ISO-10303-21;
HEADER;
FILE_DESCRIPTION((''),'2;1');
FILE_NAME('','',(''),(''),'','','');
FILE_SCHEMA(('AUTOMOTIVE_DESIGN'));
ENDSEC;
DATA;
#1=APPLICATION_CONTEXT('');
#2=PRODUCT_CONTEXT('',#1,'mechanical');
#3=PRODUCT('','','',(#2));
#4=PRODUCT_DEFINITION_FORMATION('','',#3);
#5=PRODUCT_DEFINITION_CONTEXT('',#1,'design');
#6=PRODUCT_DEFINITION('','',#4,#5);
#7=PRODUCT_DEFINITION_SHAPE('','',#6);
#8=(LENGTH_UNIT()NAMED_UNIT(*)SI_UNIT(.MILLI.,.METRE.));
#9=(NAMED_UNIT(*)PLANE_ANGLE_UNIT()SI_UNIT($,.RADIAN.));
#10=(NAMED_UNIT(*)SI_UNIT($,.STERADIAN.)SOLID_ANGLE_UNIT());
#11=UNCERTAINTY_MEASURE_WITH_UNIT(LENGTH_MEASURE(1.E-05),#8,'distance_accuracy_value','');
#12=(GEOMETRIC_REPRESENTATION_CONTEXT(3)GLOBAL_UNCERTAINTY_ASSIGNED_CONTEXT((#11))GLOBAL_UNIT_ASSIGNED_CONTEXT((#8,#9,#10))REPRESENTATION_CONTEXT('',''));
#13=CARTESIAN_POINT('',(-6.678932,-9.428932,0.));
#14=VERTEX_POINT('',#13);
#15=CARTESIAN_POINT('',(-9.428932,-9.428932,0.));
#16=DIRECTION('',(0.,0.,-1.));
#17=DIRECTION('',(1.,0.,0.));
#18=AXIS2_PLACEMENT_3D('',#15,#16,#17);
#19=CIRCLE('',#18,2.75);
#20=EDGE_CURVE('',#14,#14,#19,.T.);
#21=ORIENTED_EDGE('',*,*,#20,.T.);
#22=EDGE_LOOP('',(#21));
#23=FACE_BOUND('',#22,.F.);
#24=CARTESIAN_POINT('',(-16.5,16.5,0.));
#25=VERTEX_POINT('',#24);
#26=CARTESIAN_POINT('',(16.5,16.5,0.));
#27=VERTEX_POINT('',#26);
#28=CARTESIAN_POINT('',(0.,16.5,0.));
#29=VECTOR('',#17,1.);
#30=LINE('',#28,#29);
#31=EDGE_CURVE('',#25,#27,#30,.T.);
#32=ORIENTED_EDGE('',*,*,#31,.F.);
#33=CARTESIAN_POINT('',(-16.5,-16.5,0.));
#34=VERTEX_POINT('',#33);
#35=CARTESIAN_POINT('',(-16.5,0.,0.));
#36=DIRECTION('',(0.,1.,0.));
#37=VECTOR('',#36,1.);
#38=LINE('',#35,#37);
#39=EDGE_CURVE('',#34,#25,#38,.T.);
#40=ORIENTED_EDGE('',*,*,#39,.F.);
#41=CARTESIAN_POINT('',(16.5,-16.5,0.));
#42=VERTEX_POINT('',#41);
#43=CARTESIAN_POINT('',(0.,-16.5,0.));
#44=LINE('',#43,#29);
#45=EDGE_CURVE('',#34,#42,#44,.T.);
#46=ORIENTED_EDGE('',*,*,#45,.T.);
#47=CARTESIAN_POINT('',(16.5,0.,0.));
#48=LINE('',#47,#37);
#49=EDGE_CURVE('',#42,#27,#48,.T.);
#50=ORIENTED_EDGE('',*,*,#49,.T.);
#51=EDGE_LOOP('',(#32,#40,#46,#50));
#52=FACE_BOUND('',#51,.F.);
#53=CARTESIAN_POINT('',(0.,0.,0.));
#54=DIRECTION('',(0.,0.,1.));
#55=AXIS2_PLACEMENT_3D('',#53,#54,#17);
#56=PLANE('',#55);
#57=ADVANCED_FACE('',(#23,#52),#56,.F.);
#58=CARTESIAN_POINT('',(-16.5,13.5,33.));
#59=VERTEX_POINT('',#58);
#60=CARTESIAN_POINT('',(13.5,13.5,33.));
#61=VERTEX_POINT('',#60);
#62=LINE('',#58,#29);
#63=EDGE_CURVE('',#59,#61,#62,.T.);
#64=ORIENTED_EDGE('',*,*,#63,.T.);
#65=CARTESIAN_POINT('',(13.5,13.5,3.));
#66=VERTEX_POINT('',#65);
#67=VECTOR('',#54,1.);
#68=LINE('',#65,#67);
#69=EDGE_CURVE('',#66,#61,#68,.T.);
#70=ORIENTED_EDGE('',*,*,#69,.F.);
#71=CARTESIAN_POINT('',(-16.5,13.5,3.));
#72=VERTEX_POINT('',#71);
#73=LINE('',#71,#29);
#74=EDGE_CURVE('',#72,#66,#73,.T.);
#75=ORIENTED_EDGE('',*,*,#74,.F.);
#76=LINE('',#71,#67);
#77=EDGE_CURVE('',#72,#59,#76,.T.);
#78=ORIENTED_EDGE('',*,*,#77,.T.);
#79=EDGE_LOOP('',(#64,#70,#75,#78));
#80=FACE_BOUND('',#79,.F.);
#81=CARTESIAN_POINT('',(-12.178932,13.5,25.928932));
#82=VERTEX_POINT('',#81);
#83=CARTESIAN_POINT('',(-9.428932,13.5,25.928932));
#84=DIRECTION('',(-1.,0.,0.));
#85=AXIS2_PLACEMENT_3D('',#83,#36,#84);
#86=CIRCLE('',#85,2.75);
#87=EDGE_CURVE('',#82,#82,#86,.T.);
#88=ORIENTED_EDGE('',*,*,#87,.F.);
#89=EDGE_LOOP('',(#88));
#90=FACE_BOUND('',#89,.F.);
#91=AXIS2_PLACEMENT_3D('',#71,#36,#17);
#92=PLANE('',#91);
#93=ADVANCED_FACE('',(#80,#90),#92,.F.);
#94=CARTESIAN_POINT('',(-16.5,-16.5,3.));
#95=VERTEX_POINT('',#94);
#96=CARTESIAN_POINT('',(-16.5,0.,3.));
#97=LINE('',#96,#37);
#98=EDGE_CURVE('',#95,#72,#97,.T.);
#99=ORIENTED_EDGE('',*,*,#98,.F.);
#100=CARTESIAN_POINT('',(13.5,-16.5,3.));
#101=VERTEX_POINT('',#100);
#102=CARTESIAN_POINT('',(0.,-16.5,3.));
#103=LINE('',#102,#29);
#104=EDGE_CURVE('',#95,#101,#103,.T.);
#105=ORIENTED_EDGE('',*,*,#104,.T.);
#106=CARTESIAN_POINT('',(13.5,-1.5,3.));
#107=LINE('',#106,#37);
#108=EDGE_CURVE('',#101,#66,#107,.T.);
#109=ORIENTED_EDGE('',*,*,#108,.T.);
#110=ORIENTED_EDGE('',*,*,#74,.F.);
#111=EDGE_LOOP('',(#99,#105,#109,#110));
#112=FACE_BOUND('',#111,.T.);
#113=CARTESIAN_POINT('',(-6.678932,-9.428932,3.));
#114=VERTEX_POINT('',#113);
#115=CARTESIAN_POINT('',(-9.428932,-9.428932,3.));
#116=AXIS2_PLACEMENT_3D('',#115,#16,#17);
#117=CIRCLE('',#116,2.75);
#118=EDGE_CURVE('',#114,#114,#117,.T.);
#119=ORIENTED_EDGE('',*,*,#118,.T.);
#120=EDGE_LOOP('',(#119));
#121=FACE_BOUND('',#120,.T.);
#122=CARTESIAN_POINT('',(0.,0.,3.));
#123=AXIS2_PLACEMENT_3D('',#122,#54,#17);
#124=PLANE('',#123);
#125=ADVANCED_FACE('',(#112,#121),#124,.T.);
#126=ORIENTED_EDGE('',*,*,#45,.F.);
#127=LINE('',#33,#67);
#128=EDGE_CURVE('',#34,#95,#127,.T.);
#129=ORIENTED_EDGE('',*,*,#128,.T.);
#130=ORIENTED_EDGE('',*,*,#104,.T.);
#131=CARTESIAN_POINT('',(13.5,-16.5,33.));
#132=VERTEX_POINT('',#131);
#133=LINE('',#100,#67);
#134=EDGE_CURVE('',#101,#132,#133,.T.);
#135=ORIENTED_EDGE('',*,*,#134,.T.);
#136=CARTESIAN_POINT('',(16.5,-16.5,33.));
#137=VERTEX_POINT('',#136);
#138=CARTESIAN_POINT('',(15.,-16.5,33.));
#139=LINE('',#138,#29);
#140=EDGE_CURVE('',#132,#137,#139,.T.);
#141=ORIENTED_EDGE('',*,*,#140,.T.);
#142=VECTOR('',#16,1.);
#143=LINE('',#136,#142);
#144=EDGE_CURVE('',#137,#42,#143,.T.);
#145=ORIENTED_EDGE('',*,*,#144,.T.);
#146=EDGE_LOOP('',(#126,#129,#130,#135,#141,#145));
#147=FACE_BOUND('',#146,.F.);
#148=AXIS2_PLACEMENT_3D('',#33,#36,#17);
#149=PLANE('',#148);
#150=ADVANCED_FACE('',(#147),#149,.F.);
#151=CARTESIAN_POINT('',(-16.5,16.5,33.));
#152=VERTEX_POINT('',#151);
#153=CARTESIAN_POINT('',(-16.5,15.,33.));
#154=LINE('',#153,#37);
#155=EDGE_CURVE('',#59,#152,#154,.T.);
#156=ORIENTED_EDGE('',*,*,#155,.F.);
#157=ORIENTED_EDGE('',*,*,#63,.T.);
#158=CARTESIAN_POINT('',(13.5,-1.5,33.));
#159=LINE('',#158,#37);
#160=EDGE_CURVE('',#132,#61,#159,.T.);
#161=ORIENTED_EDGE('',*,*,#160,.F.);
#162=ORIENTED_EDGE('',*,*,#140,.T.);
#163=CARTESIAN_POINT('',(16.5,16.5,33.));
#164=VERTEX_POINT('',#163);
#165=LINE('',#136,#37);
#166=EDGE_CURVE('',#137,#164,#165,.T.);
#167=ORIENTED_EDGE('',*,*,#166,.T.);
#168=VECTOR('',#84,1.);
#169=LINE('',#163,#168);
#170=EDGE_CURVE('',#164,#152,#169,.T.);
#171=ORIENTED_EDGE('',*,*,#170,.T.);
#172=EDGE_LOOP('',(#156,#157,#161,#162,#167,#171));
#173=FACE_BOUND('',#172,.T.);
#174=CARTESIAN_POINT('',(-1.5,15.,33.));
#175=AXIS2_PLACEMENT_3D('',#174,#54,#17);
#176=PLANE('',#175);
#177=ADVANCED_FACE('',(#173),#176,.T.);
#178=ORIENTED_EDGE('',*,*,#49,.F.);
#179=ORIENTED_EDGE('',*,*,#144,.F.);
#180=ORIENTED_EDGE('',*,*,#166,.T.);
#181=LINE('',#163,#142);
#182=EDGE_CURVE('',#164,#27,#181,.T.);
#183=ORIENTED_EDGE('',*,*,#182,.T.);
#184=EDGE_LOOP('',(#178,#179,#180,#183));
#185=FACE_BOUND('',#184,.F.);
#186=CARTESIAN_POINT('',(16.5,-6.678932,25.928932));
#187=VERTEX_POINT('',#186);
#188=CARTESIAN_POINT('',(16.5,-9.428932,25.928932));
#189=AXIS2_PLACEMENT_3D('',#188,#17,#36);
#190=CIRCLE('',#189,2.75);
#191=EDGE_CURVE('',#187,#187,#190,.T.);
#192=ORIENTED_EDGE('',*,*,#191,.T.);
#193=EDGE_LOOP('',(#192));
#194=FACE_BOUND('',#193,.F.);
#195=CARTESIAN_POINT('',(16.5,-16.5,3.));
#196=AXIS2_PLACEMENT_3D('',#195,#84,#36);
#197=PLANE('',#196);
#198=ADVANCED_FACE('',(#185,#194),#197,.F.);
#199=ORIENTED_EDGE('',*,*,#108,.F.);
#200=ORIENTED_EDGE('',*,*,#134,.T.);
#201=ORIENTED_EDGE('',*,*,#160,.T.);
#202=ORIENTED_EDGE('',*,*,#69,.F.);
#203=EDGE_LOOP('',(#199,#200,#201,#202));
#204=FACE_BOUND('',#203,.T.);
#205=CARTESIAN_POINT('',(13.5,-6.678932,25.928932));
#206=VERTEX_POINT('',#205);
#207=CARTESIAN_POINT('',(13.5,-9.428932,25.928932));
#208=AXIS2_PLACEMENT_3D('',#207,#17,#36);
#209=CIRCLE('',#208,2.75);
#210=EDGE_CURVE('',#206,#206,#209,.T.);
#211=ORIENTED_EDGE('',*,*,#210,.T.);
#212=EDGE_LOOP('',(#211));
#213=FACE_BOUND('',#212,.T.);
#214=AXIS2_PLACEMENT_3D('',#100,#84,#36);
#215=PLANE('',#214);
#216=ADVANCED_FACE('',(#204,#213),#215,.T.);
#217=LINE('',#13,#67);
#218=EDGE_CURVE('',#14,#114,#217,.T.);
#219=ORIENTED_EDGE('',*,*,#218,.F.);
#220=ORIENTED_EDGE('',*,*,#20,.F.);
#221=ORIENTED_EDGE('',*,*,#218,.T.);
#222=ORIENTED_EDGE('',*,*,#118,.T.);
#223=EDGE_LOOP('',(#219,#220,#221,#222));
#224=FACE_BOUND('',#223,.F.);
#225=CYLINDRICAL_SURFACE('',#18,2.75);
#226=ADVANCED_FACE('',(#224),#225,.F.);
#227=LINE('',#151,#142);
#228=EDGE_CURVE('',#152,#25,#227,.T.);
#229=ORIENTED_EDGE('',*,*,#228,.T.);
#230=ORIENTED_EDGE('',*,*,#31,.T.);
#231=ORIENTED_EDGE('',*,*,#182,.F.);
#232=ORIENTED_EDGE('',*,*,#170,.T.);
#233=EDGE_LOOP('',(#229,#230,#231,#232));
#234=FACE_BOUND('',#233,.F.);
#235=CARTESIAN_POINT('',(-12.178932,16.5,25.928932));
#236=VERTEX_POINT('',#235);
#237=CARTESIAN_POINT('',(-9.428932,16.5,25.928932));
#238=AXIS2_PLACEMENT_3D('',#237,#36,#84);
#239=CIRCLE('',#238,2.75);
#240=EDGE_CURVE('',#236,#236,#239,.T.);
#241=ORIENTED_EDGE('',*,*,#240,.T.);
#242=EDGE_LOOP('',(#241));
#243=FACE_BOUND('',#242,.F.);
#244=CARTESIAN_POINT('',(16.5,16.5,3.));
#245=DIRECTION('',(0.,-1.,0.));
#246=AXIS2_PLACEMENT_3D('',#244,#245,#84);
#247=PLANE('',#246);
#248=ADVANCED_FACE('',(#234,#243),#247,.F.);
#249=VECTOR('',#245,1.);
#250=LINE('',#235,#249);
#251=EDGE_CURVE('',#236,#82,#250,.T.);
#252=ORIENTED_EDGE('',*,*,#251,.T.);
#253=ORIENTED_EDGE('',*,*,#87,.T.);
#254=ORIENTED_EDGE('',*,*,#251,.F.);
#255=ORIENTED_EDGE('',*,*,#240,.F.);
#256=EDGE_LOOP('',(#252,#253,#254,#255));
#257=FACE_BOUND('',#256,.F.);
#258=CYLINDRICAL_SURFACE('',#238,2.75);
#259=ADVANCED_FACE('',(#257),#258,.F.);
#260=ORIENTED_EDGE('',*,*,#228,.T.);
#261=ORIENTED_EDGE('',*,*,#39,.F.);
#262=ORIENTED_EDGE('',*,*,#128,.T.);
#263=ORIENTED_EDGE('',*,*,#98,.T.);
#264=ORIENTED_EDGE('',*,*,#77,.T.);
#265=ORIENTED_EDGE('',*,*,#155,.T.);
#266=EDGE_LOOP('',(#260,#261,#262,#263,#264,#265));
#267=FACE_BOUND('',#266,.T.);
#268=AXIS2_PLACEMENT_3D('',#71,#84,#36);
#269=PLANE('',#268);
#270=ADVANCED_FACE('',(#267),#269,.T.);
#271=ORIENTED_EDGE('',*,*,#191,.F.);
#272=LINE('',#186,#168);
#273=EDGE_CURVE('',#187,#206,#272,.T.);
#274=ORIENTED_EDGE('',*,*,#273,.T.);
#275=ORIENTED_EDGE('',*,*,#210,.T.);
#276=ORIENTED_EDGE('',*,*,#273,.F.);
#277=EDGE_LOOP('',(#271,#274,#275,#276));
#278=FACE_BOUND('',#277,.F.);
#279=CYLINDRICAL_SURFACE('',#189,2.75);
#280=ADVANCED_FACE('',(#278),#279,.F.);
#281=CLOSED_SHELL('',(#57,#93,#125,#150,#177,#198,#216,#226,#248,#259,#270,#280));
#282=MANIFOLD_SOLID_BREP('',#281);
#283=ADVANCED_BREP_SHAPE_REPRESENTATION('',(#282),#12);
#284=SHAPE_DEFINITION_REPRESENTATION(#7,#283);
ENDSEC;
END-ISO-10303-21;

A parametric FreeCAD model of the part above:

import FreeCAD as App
import Part
import Sketcher

V = App.Vector


def add_polygon(sketch, points):
    """Adds a closed chain of lines whose ends are joined by coincident constraints."""
    first, n = sketch.GeometryCount, len(points)
    for a, b in zip(points, points[1:] + points[:1]):
        sketch.addGeometry(Part.LineSegment(App.Vector(*a, 0), App.Vector(*b, 0)), False)
    for i in range(n):
        sketch.addConstraint(Sketcher.Constraint("Coincident", first + i, 2, first + (i + 1) % n, 1))

doc = App.newDocument("Part")
params = doc.addObject("Spreadsheet::Sheet", "Params")
for row, (alias, value) in enumerate([
    ("sketch1_width", "33 mm"),
    ("pad1_length", "3 mm"),
    ("sketch2_width", "30 mm"),
    ("sketch2_width2", "3 mm"),
    ("pad2_length", "30 mm"),
    ("sketch3_diameter", "5.5 mm"),
    ("pocket1_length", "3 mm"),
    ("sketch4_diameter", "5.5 mm"),
    ("pocket2_length", "3 mm"),
    ("sketch5_diameter", "5.5 mm"),
    ("pocket3_length", "3 mm"),
], start=1):
    params.set(f"A{row}", alias)
    params.set(f"B{row}", "=" + value)
    params.setAlias(f"B{row}", alias)

body = doc.addObject("PartDesign::Body", "Body")

# Sketch on XY plane
sketch1 = doc.addObject("Sketcher::SketchObject", "Sketch")
body.addObject(sketch1)
sketch1.AttachmentSupport = (doc.XY_Plane, [""])
sketch1.MapMode = "FlatFace"
add_polygon(sketch1, [(-16.5, 16.5), (-16.5, -16.5), (16.5, -16.5), (16.5, 16.5)])  # lines 0-3
sketch1.addConstraint([
    Sketcher.Constraint("Vertical", 0),
    Sketcher.Constraint("Horizontal", 1),
    Sketcher.Constraint("Vertical", 2),
    Sketcher.Constraint("Horizontal", 3),
    Sketcher.Constraint("Symmetric", 0, 2, 2, 2, -1, 1),
    Sketcher.Constraint("Equal", 3, 0),
    Sketcher.Constraint("DistanceX", 1, 1, 1, 2, 33.0),
])
sketch1.setExpression("Constraints[10]", "Params.sketch1_width")
pad1 = doc.addObject("PartDesign::Pad", "Pad")
body.addObject(pad1)
pad1.Profile = sketch1
pad1.setExpression("Length", "Params.pad1_length")

# Sketch on XY plane
sketch2 = doc.addObject("Sketcher::SketchObject", "Sketch001")
body.addObject(sketch2)
sketch2.AttachmentSupport = (doc.XY_Plane, [""])
sketch2.MapMode = "FlatFace"
sketch2.AttachmentOffset = App.Placement(V(0, 0, 3), App.Rotation())
add_polygon(sketch2, [(-16.5, 16.5), (-16.5, 13.5), (13.5, 13.5), (13.5, -16.5), (16.5, -16.5), (16.5, 16.5)])  # lines 0-5
sketch2.addConstraint([
    Sketcher.Constraint("Vertical", 0),
    Sketcher.Constraint("Horizontal", 1),
    Sketcher.Constraint("Vertical", 2),
    Sketcher.Constraint("Horizontal", 3),
    Sketcher.Constraint("Vertical", 4),
    Sketcher.Constraint("Horizontal", 5),
    Sketcher.Constraint("Symmetric", 3, 2, 5, 2, -1, 1),
    Sketcher.Constraint("Equal", 3, 0),
    Sketcher.Constraint("Equal", 1, 2),
    Sketcher.Constraint("DistanceX", 1, 1, 1, 2, 30.0),
    Sketcher.Constraint("DistanceX", 3, 1, 3, 2, 3.0),
])
sketch2.setExpression("Constraints[15]", "Params.sketch2_width")
sketch2.setExpression("Constraints[16]", "Params.sketch2_width2")
pad2 = doc.addObject("PartDesign::Pad", "Pad001")
body.addObject(pad2)
pad2.Profile = sketch2
pad2.setExpression("Length", "Params.pad2_length")

# Sketch on XZ plane
sketch3 = doc.addObject("Sketcher::SketchObject", "Sketch002")
body.addObject(sketch3)
sketch3.AttachmentSupport = (doc.XZ_Plane, [""])
sketch3.MapMode = "FlatFace"
sketch3.AttachmentOffset = App.Placement(V(0, 0, -16.5), App.Rotation())
sketch3.addGeometry(Part.Circle(V(-9.428932, 25.928932, 0), V(0, 0, 1), 2.75), False)
sketch3.addConstraint([
    Sketcher.Constraint("Diameter", 0, 5.5),
    Sketcher.Constraint("DistanceY", -1, 1, 0, 3, 25.928932),
    Sketcher.Constraint("DistanceX", 0, 3, -1, 1, 9.428932),
])
sketch3.setExpression("Constraints[0]", "Params.sketch3_diameter")
pocket1 = doc.addObject("PartDesign::Pocket", "Pocket")
body.addObject(pocket1)
pocket1.Profile = sketch3
pocket1.setExpression("Length", "Params.pocket1_length")
pocket1.Reversed = True

# Sketch on XY plane
sketch4 = doc.addObject("Sketcher::SketchObject", "Sketch003")
body.addObject(sketch4)
sketch4.AttachmentSupport = (doc.XY_Plane, [""])
sketch4.MapMode = "FlatFace"
sketch4.addGeometry(Part.Circle(V(-9.428932, -9.428932, 0), V(0, 0, 1), 2.75), False)
sketch4.addConstraint([
    Sketcher.Constraint("Diameter", 0, 5.5),
    Sketcher.Constraint("DistanceX", 0, 3, -1, 1, 9.428932),
    Sketcher.Constraint("DistanceY", 0, 3, -1, 1, 9.428932),
])
sketch4.setExpression("Constraints[0]", "Params.sketch4_diameter")
pocket2 = doc.addObject("PartDesign::Pocket", "Pocket001")
body.addObject(pocket2)
pocket2.Profile = sketch4
pocket2.setExpression("Length", "Params.pocket2_length")
pocket2.Reversed = True

# Sketch on YZ plane
sketch5 = doc.addObject("Sketcher::SketchObject", "Sketch004")
body.addObject(sketch5)
sketch5.AttachmentSupport = (doc.YZ_Plane, [""])
sketch5.MapMode = "FlatFace"
sketch5.AttachmentOffset = App.Placement(V(0, 0, 16.5), App.Rotation())
sketch5.addGeometry(Part.Circle(V(-9.428932, 25.928932, 0), V(0, 0, 1), 2.75), False)
sketch5.addConstraint([
    Sketcher.Constraint("Diameter", 0, 5.5),
    Sketcher.Constraint("DistanceY", -1, 1, 0, 3, 25.928932),
    Sketcher.Constraint("DistanceX", 0, 3, -1, 1, 9.428932),
])
sketch5.setExpression("Constraints[0]", "Params.sketch5_diameter")
pocket3 = doc.addObject("PartDesign::Pocket", "Pocket002")
body.addObject(pocket3)
pocket3.Profile = sketch5
pocket3.setExpression("Length", "Params.pocket3_length")

doc.recompute()
